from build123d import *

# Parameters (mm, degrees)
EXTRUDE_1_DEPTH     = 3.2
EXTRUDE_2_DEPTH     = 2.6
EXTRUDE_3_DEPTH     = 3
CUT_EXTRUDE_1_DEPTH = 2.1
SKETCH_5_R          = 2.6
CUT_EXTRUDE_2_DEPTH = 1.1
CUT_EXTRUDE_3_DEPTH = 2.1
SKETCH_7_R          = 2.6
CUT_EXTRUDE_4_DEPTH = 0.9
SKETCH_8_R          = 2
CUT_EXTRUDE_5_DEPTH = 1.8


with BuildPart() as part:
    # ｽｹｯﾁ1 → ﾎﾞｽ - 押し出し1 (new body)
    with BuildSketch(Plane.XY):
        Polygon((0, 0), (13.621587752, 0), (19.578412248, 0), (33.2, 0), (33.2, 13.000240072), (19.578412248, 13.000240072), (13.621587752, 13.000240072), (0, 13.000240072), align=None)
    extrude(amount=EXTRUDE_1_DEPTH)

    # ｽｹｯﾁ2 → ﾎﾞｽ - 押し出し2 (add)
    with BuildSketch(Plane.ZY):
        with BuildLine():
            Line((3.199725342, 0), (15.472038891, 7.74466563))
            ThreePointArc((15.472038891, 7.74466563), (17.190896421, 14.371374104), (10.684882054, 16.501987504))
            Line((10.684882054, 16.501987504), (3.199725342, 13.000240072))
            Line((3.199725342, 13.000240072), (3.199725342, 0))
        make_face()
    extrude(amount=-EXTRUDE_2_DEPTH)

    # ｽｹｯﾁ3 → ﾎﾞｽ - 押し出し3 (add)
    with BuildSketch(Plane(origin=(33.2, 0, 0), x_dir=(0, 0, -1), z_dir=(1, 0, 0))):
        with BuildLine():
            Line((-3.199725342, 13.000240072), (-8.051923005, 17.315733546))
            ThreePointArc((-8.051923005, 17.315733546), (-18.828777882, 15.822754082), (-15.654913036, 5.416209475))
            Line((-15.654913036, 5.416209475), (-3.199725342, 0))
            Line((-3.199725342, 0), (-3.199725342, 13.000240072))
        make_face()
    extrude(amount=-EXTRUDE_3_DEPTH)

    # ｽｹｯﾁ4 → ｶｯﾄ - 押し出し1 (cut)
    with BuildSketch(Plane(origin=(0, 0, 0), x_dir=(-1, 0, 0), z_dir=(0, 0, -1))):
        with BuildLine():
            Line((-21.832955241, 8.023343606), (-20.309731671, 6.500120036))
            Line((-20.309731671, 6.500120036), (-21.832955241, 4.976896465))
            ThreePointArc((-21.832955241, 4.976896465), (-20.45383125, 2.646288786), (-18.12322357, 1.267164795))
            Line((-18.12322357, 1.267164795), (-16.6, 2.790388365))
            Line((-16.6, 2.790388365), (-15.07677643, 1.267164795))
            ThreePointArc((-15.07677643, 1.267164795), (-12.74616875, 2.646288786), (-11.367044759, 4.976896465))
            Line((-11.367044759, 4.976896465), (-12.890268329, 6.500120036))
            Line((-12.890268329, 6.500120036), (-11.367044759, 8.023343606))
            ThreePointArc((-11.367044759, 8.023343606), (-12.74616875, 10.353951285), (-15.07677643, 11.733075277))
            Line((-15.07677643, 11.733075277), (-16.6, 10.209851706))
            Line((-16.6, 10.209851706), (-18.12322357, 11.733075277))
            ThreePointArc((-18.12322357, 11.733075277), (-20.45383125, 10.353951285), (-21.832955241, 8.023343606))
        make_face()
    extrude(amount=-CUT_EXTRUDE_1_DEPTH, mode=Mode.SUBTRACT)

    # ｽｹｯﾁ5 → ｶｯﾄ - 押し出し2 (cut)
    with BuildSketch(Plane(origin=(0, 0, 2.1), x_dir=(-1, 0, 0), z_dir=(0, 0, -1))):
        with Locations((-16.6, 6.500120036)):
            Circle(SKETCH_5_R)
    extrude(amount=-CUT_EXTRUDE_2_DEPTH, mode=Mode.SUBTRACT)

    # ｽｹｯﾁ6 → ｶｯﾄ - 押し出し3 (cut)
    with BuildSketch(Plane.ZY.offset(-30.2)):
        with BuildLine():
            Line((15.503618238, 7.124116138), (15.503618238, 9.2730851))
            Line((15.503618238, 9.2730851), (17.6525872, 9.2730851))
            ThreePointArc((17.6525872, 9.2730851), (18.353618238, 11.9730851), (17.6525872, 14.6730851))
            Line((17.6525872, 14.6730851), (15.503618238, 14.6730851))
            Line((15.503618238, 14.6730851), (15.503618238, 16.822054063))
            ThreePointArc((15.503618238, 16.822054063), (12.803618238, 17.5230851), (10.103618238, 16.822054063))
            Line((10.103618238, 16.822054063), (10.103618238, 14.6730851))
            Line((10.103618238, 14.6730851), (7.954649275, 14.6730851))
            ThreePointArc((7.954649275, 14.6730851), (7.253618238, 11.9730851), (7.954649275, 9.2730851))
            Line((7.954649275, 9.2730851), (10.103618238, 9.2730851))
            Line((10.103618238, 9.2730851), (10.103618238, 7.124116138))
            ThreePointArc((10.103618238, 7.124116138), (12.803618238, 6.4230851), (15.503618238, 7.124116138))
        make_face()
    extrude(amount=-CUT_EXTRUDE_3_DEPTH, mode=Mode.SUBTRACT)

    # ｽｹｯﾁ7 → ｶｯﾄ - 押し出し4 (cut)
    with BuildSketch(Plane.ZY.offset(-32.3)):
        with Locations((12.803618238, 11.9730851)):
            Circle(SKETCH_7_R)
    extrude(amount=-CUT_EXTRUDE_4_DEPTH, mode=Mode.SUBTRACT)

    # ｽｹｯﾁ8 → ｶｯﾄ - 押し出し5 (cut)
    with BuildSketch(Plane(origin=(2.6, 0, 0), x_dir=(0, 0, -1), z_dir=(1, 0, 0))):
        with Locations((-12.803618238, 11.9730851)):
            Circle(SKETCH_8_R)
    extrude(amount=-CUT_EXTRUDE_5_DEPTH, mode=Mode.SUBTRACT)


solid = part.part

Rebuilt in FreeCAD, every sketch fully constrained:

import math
import FreeCAD as App
import Part
import Sketcher
Q = App.Units.Quantity

doc = App.newDocument("Part")
body = doc.addObject("PartDesign::Body", "Body")

# Sketch on XY plane
sketch1 = body.newObject("Sketcher::SketchObject", "Sketch")
sketch1.AttachmentSupport = (doc.getObject("XY_Plane"), [""])
sketch1.MapMode = "FlatFace"
sketch1.addGeometry(Part.LineSegment(App.Vector(0, 0, 0), App.Vector(33.2, 0, 0)), False)
sketch1.addGeometry(Part.LineSegment(App.Vector(33.2, 0, 0), App.Vector(33.2, 13.00024, 0)), False)
sketch1.addGeometry(Part.LineSegment(App.Vector(33.2, 13.00024, 0), App.Vector(0, 13.00024, 0)), False)
sketch1.addGeometry(Part.LineSegment(App.Vector(0, 13.00024, 0), App.Vector(0, 0, 0)), False)
sketch1.addConstraint(Sketcher.Constraint("Coincident", 0, 2, 1, 1))
sketch1.addConstraint(Sketcher.Constraint("Coincident", 1, 2, 2, 1))
sketch1.addConstraint(Sketcher.Constraint("Coincident", 2, 2, 3, 1))
sketch1.addConstraint(Sketcher.Constraint("Coincident", 3, 2, 0, 1))
sketch1.addConstraint(Sketcher.Constraint("Horizontal", 0))
sketch1.addConstraint(Sketcher.Constraint("Vertical", 1))
sketch1.addConstraint(Sketcher.Constraint("Horizontal", 2))
sketch1.addConstraint(Sketcher.Constraint("Vertical", 3))
sketch1.addConstraint(Sketcher.Constraint("Coincident", 3, 2, -1, 1))
sketch1.addConstraint(Sketcher.Constraint("DistanceX", 0, 1, 0, 2, Q("33.2 mm")))
sketch1.addConstraint(Sketcher.Constraint("DistanceY", 1, 1, 1, 2, Q("13.00024 mm")))
pad1 = body.newObject("PartDesign::Pad", "Pad")
pad1.Profile = sketch1
pad1.Length = 3.2

# Sketch on YZ plane
sketch2 = body.newObject("Sketcher::SketchObject", "Sketch001")
sketch2.AttachmentSupport = (doc.getObject("YZ_Plane"), [""])
sketch2.MapMode = "FlatFace"
sketch2.addGeometry(Part.LineSegment(App.Vector(0, 3.199725, 0), App.Vector(7.744666, 15.472039, 0)), False)
sketch2.addGeometry(Part.ArcOfCircle(Part.Circle(App.Vector(11.973085, 12.803618, 0), App.Vector(0, 0, 1), 5), math.radians(-25.071393), math.radians(147.745284)), False)
sketch2.addGeometry(Part.LineSegment(App.Vector(16.501988, 10.684882, 0), App.Vector(13.00024, 3.199725, 0)), False)
sketch2.addGeometry(Part.LineSegment(App.Vector(13.00024, 3.199725, 0), App.Vector(0, 3.199725, 0)), False)
sketch2.addConstraint(Sketcher.Constraint("Tangent", 0, 2, 1, 2))
sketch2.addConstraint(Sketcher.Constraint("Tangent", 1, 1, 2, 1))
sketch2.addConstraint(Sketcher.Constraint("Coincident", 2, 2, 3, 1))
sketch2.addConstraint(Sketcher.Constraint("Coincident", 3, 2, 0, 1))
sketch2.addConstraint(Sketcher.Constraint("Horizontal", 3))
sketch2.addConstraint(Sketcher.Constraint("PointOnObject", 3, 2, -2))
sketch2.addConstraint(Sketcher.Constraint("Radius", 1, Q("5 mm")))
sketch2.addConstraint(Sketcher.Constraint("DistanceX", 3, 2, 3, 1, Q("13.00024 mm")))
sketch2.addConstraint(Sketcher.Constraint("DistanceY", -1, 1, 1, 3, Q("12.803618 mm")))
sketch2.addConstraint(Sketcher.Constraint("DistanceY", -1, 1, 0, 2, Q("15.472039 mm")))
sketch2.addConstraint(Sketcher.Constraint("DistanceX", 0, 2, 1, 1, Q("8.757322 mm")))
pad2 = body.newObject("PartDesign::Pad", "Pad001")
pad2.Profile = sketch2
pad2.Length = 2.6

# Sketch on YZ plane
sketch3 = body.newObject("Sketcher::SketchObject", "Sketch002")
sketch3.AttachmentSupport = (doc.getObject("YZ_Plane"), [""])
sketch3.MapMode = "FlatFace"
sketch3.AttachmentOffset = App.Placement(App.Vector(0, 0, 33.2), App.Rotation())
sketch3.addGeometry(Part.LineSegment(App.Vector(13.00024, 3.199725, 0), App.Vector(17.315734, 8.051923, 0)), False)
sketch3.addGeometry(Part.ArcOfCircle(Part.Circle(App.Vector(11.973085, 12.803618, 0), App.Vector(0, 0, 1), 7.15), math.radians(-41.649557), math.radians(156.497912)), False)
sketch3.addGeometry(Part.LineSegment(App.Vector(5.416209, 15.654913, 0), App.Vector(0, 3.199725, 0)), False)
sketch3.addGeometry(Part.LineSegment(App.Vector(0, 3.199725, 0), App.Vector(13.00024, 3.199725, 0)), False)
sketch3.addConstraint(Sketcher.Constraint("Tangent", 0, 2, 1, 1))
sketch3.addConstraint(Sketcher.Constraint("Tangent", 1, 2, 2, 1))
sketch3.addConstraint(Sketcher.Constraint("Coincident", 2, 2, 3, 1))
sketch3.addConstraint(Sketcher.Constraint("Coincident", 3, 2, 0, 1))
sketch3.addConstraint(Sketcher.Constraint("Horizontal", 3))
sketch3.addConstraint(Sketcher.Constraint("PointOnObject", 2, 2, -2))
sketch3.addConstraint(Sketcher.Constraint("Radius", 1, Q("7.15 mm")))
sketch3.addConstraint(Sketcher.Constraint("DistanceX", 3, 1, 3, 2, Q("13.00024 mm")))
sketch3.addConstraint(Sketcher.Constraint("DistanceY", -1, 1, 1, 3, Q("12.803618 mm")))
sketch3.addConstraint(Sketcher.Constraint("DistanceX", -1, 1, 1, 2, Q("5.416209 mm")))
sketch3.addConstraint(Sketcher.Constraint("DistanceX", 1, 3, 0, 2, Q("5.342648 mm")))
pad3 = body.newObject("PartDesign::Pad", "Pad002")
pad3.Profile = sketch3
pad3.Length = 3
pad3.Reversed = True

# Sketch on XY plane
sketch4 = body.newObject("Sketcher::SketchObject", "Sketch003")
sketch4.AttachmentSupport = (doc.getObject("XY_Plane"), [""])
sketch4.MapMode = "FlatFace"
sketch4.addGeometry(Part.LineSegment(App.Vector(21.832955, 8.023344, 0), App.Vector(20.309732, 6.50012, 0)), False)
sketch4.addGeometry(Part.LineSegment(App.Vector(20.309732, 6.50012, 0), App.Vector(21.832955, 4.976896, 0)), False)
sketch4.addGeometry(Part.ArcOfCircle(Part.Circle(App.Vector(16.6, 6.50012, 0), App.Vector(0, 0, 1), 5.45014), math.radians(-73.770627), math.radians(-16.229373)), False)
sketch4.addGeometry(Part.LineSegment(App.Vector(18.123224, 1.267165, 0), App.Vector(16.6, 2.790388, 0)), False)
sketch4.addGeometry(Part.LineSegment(App.Vector(16.6, 2.790388, 0), App.Vector(15.076776, 1.267165, 0)), False)
sketch4.addGeometry(Part.ArcOfCircle(Part.Circle(App.Vector(16.6, 6.50012, 0), App.Vector(0, 0, 1), 5.45014), math.radians(-163.770627), math.radians(-106.229373)), False)
sketch4.addGeometry(Part.LineSegment(App.Vector(11.367045, 4.976896, 0), App.Vector(12.890268, 6.50012, 0)), False)
sketch4.addGeometry(Part.LineSegment(App.Vector(12.890268, 6.50012, 0), App.Vector(11.367045, 8.023344, 0)), False)
sketch4.addGeometry(Part.ArcOfCircle(Part.Circle(App.Vector(16.6, 6.50012, 0), App.Vector(0, 0, 1), 5.45014), math.radians(106.229373), math.radians(163.770627)), False)
sketch4.addGeometry(Part.LineSegment(App.Vector(15.076776, 11.733075, 0), App.Vector(16.6, 10.209852, 0)), False)
sketch4.addGeometry(Part.LineSegment(App.Vector(16.6, 10.209852, 0), App.Vector(18.123224, 11.733075, 0)), False)
sketch4.addGeometry(Part.ArcOfCircle(Part.Circle(App.Vector(16.6, 6.50012, 0), App.Vector(0, 0, 1), 5.45014), math.radians(16.229373), math.radians(73.770627)), False)
sketch4.addConstraint(Sketcher.Constraint("Coincident", 0, 2, 1, 1))
sketch4.addConstraint(Sketcher.Constraint("Coincident", 1, 2, 2, 2))
sketch4.addConstraint(Sketcher.Constraint("Coincident", 2, 1, 3, 1))
sketch4.addConstraint(Sketcher.Constraint("Coincident", 3, 2, 4, 1))
sketch4.addConstraint(Sketcher.Constraint("Coincident", 4, 2, 5, 2))
sketch4.addConstraint(Sketcher.Constraint("Coincident", 5, 1, 6, 1))
sketch4.addConstraint(Sketcher.Constraint("Coincident", 6, 2, 7, 1))
sketch4.addConstraint(Sketcher.Constraint("Coincident", 7, 2, 8, 2))
sketch4.addConstraint(Sketcher.Constraint("Coincident", 8, 1, 9, 1))
sketch4.addConstraint(Sketcher.Constraint("Coincident", 9, 2, 10, 1))
sketch4.addConstraint(Sketcher.Constraint("Coincident", 10, 2, 11, 2))
sketch4.addConstraint(Sketcher.Constraint("Coincident", 11, 1, 0, 1))
sketch4.addConstraint(Sketcher.Constraint("Coincident", 5, 3, 2, 3))
sketch4.addConstraint(Sketcher.Constraint("Coincident", 8, 3, 2, 3))
sketch4.addConstraint(Sketcher.Constraint("Coincident", 11, 3, 2, 3))
sketch4.addConstraint(Sketcher.Constraint("Equal", 2, 5))
sketch4.addConstraint(Sketcher.Constraint("Equal", 5, 8))
sketch4.addConstraint(Sketcher.Constraint("Equal", 8, 11))
sketch4.addConstraint(Sketcher.Constraint("Perpendicular", 0, 1))
sketch4.addConstraint(Sketcher.Constraint("Parallel", 1, 3))
sketch4.addConstraint(Sketcher.Constraint("Perpendicular", 3, 4))
sketch4.addConstraint(Sketcher.Constraint("Parallel", 4, 6))
sketch4.addConstraint(Sketcher.Constraint("Perpendicular", 6, 7))
sketch4.addConstraint(Sketcher.Constraint("Parallel", 7, 9))
sketch4.addConstraint(Sketcher.Constraint("Perpendicular", 9, 10))
sketch4.addConstraint(Sketcher.Constraint("Horizontal", 11, 3, 0, 2))
sketch4.addConstraint(Sketcher.Constraint("Horizontal", 2, 1, 4, 2))
sketch4.addConstraint(Sketcher.Constraint("Horizontal", 1, 2, 5, 1))
sketch4.addConstraint(Sketcher.Constraint("Horizontal", 0, 2, 6, 2))
sketch4.addConstraint(Sketcher.Constraint("Horizontal", 8, 1, 10, 2))
sketch4.addConstraint(Sketcher.Constraint("Horizontal", 7, 2, 11, 1))
sketch4.addConstraint(Sketcher.Constraint("Vertical", 4, 2, 8, 1))
sketch4.addConstraint(Sketcher.Constraint("Equal", 1, 3))
sketch4.addConstraint(Sketcher.Constraint("DistanceX", -1, 1, 2, 3, Q("16.6 mm")))
sketch4.addConstraint(Sketcher.Constraint("Radius", 2, Q("5.45014 mm")))
sketch4.addConstraint(Sketcher.Constraint("DistanceY", -1, 1, 2, 3, Q("6.50012 mm")))
sketch4.addConstraint(Sketcher.Constraint("DistanceX", -1, 1, 0, 2, Q("20.309732 mm")))
pocket1 = body.newObject("PartDesign::Pocket", "Pocket")
pocket1.Profile = sketch4
pocket1.Length = 2.1
pocket1.Reversed = True

# Sketch on XY plane
sketch5 = body.newObject("Sketcher::SketchObject", "Sketch004")
sketch5.AttachmentSupport = (doc.getObject("XY_Plane"), [""])
sketch5.MapMode = "FlatFace"
sketch5.AttachmentOffset = App.Placement(App.Vector(0, 0, 2.1), App.Rotation())
sketch5.addGeometry(Part.Circle(App.Vector(16.6, 6.50012, 0), App.Vector(0, 0, 1), 2.6), False)
sketch5.addConstraint(Sketcher.Constraint("Diameter", 0, Q("5.2 mm")))
sketch5.addConstraint(Sketcher.Constraint("DistanceX", -1, 1, 0, 3, Q("16.6 mm")))
sketch5.addConstraint(Sketcher.Constraint("DistanceY", -1, 1, 0, 3, Q("6.50012 mm")))
pocket2 = body.newObject("PartDesign::Pocket", "Pocket001")
pocket2.Profile = sketch5
pocket2.Length = 1.1
pocket2.Reversed = True

# Sketch on YZ plane
sketch6 = body.newObject("Sketcher::SketchObject", "Sketch005")
sketch6.AttachmentSupport = (doc.getObject("YZ_Plane"), [""])
sketch6.MapMode = "FlatFace"
sketch6.AttachmentOffset = App.Placement(App.Vector(0, 0, 30.2), App.Rotation())
sketch6.addGeometry(Part.LineSegment(App.Vector(7.124116, 15.503618, 0), App.Vector(9.273085, 15.503618, 0)), False)
sketch6.addGeometry(Part.LineSegment(App.Vector(9.273085, 15.503618, 0), App.Vector(9.273085, 17.652587, 0)), False)
sketch6.addGeometry(Part.ArcOfCircle(Part.Circle(App.Vector(11.973085, 12.803618, 0), App.Vector(0, 0, 1), 5.55), math.radians(60.890091), math.radians(119.109909)), False)
sketch6.addGeometry(Part.LineSegment(App.Vector(14.673085, 17.652587, 0), App.Vector(14.673085, 15.503618, 0)), False)
sketch6.addGeometry(Part.LineSegment(App.Vector(14.673085, 15.503618, 0), App.Vector(16.822054, 15.503618, 0)), False)
sketch6.addGeometry(Part.ArcOfCircle(Part.Circle(App.Vector(11.973085, 12.803618, 0), App.Vector(0, 0, 1), 5.55), math.radians(-29.109909), math.radians(29.109909)), False)
sketch6.addGeometry(Part.LineSegment(App.Vector(16.822054, 10.103618, 0), App.Vector(14.673085, 10.103618, 0)), False)
sketch6.addGeometry(Part.LineSegment(App.Vector(14.673085, 10.103618, 0), App.Vector(14.673085, 7.954649, 0)), False)
sketch6.addGeometry(Part.ArcOfCircle(Part.Circle(App.Vector(11.973085, 12.803618, 0), App.Vector(0, 0, 1), 5.55), math.radians(-119.109909), math.radians(-60.890091)), False)
sketch6.addGeometry(Part.LineSegment(App.Vector(9.273085, 7.954649, 0), App.Vector(9.273085, 10.103618, 0)), False)
sketch6.addGeometry(Part.LineSegment(App.Vector(9.273085, 10.103618, 0), App.Vector(7.124116, 10.103618, 0)), False)
sketch6.addGeometry(Part.ArcOfCircle(Part.Circle(App.Vector(11.973085, 12.803618, 0), App.Vector(0, 0, 1), 5.55), math.radians(150.890091), math.radians(209.109909)), False)
sketch6.addConstraint(Sketcher.Constraint("Coincident", 0, 2, 1, 1))
sketch6.addConstraint(Sketcher.Constraint("Coincident", 1, 2, 2, 2))
sketch6.addConstraint(Sketcher.Constraint("Coincident", 2, 1, 3, 1))
sketch6.addConstraint(Sketcher.Constraint("Coincident", 3, 2, 4, 1))
sketch6.addConstraint(Sketcher.Constraint("Coincident", 4, 2, 5, 2))
sketch6.addConstraint(Sketcher.Constraint("Coincident", 5, 1, 6, 1))
sketch6.addConstraint(Sketcher.Constraint("Coincident", 6, 2, 7, 1))
sketch6.addConstraint(Sketcher.Constraint("Coincident", 7, 2, 8, 2))
sketch6.addConstraint(Sketcher.Constraint("Coincident", 8, 1, 9, 1))
sketch6.addConstraint(Sketcher.Constraint("Coincident", 9, 2, 10, 1))
sketch6.addConstraint(Sketcher.Constraint("Coincident", 10, 2, 11, 2))
sketch6.addConstraint(Sketcher.Constraint("Coincident", 11, 1, 0, 1))
sketch6.addConstraint(Sketcher.Constraint("Horizontal", 0))
sketch6.addConstraint(Sketcher.Constraint("Vertical", 1))
sketch6.addConstraint(Sketcher.Constraint("Vertical", 3))
sketch6.addConstraint(Sketcher.Constraint("Horizontal", 4))
sketch6.addConstraint(Sketcher.Constraint("Horizontal", 6))
sketch6.addConstraint(Sketcher.Constraint("Vertical", 7))
sketch6.addConstraint(Sketcher.Constraint("Vertical", 9))
sketch6.addConstraint(Sketcher.Constraint("Horizontal", 10))
sketch6.addConstraint(Sketcher.Constraint("Coincident", 5, 3, 2, 3))
sketch6.addConstraint(Sketcher.Constraint("Coincident", 8, 3, 2, 3))
sketch6.addConstraint(Sketcher.Constraint("Coincident", 11, 3, 2, 3))
sketch6.addConstraint(Sketcher.Constraint("Equal", 2, 5))
sketch6.addConstraint(Sketcher.Constraint("Equal", 5, 8))
sketch6.addConstraint(Sketcher.Constraint("Equal", 8, 11))
sketch6.addConstraint(Sketcher.Constraint("Horizontal", 1, 2, 2, 1))
sketch6.addConstraint(Sketcher.Constraint("Horizontal", 0, 2, 3, 2))
sketch6.addConstraint(Sketcher.Constraint("Horizontal", 7, 2, 8, 1))
sketch6.addConstraint(Sketcher.Constraint("Horizontal", 6, 2, 9, 2))
sketch6.addConstraint(Sketcher.Constraint("Vertical", 4, 2, 5, 1))
sketch6.addConstraint(Sketcher.Constraint("Vertical", 3, 2, 6, 2))
sketch6.addConstraint(Sketcher.Constraint("Equal", 10, 1))
sketch6.addConstraint(Sketcher.Constraint("Radius", 2, Q("5.55 mm")))
sketch6.addConstraint(Sketcher.Constraint("DistanceX", 0, 2, 2, 3, Q("2.7 mm")))
sketch6.addConstraint(Sketcher.Constraint("DistanceY", -1, 1, 2, 3, Q("12.803618 mm")))
sketch6.addConstraint(Sketcher.Constraint("DistanceX", -1, 1, 2, 3, Q("11.973085 mm")))
pocket3 = body.newObject("PartDesign::Pocket", "Pocket002")
pocket3.Profile = sketch6
pocket3.Length = 2.1
pocket3.Reversed = True

# Sketch on YZ plane
sketch7 = body.newObject("Sketcher::SketchObject", "Sketch006")
sketch7.AttachmentSupport = (doc.getObject("YZ_Plane"), [""])
sketch7.MapMode = "FlatFace"
sketch7.AttachmentOffset = App.Placement(App.Vector(0, 0, 32.3), App.Rotation())
sketch7.addGeometry(Part.Circle(App.Vector(11.973085, 12.803618, 0), App.Vector(0, 0, 1), 2.6), False)
sketch7.addConstraint(Sketcher.Constraint("Diameter", 0, Q("5.2 mm")))
sketch7.addConstraint(Sketcher.Constraint("DistanceY", -1, 1, 0, 3, Q("12.803618 mm")))
sketch7.addConstraint(Sketcher.Constraint("DistanceX", -1, 1, 0, 3, Q("11.973085 mm")))
pocket4 = body.newObject("PartDesign::Pocket", "Pocket003")
pocket4.Profile = sketch7
pocket4.Length = 0.9
pocket4.Reversed = True

# Sketch on YZ plane
sketch8 = body.newObject("Sketcher::SketchObject", "Sketch007")
sketch8.AttachmentSupport = (doc.getObject("YZ_Plane"), [""])
sketch8.MapMode = "FlatFace"
sketch8.AttachmentOffset = App.Placement(App.Vector(0, 0, 2.6), App.Rotation())
sketch8.addGeometry(Part.Circle(App.Vector(11.973085, 12.803618, 0), App.Vector(0, 0, 1), 2), False)
sketch8.addConstraint(Sketcher.Constraint("Diameter", 0, Q("4 mm")))
sketch8.addConstraint(Sketcher.Constraint("DistanceY", -1, 1, 0, 3, Q("12.803618 mm")))
sketch8.addConstraint(Sketcher.Constraint("DistanceX", -1, 1, 0, 3, Q("11.973085 mm")))
pocket5 = body.newObject("PartDesign::Pocket", "Pocket004")
pocket5.Profile = sketch8
pocket5.Length = 1.8

doc.recompute()
